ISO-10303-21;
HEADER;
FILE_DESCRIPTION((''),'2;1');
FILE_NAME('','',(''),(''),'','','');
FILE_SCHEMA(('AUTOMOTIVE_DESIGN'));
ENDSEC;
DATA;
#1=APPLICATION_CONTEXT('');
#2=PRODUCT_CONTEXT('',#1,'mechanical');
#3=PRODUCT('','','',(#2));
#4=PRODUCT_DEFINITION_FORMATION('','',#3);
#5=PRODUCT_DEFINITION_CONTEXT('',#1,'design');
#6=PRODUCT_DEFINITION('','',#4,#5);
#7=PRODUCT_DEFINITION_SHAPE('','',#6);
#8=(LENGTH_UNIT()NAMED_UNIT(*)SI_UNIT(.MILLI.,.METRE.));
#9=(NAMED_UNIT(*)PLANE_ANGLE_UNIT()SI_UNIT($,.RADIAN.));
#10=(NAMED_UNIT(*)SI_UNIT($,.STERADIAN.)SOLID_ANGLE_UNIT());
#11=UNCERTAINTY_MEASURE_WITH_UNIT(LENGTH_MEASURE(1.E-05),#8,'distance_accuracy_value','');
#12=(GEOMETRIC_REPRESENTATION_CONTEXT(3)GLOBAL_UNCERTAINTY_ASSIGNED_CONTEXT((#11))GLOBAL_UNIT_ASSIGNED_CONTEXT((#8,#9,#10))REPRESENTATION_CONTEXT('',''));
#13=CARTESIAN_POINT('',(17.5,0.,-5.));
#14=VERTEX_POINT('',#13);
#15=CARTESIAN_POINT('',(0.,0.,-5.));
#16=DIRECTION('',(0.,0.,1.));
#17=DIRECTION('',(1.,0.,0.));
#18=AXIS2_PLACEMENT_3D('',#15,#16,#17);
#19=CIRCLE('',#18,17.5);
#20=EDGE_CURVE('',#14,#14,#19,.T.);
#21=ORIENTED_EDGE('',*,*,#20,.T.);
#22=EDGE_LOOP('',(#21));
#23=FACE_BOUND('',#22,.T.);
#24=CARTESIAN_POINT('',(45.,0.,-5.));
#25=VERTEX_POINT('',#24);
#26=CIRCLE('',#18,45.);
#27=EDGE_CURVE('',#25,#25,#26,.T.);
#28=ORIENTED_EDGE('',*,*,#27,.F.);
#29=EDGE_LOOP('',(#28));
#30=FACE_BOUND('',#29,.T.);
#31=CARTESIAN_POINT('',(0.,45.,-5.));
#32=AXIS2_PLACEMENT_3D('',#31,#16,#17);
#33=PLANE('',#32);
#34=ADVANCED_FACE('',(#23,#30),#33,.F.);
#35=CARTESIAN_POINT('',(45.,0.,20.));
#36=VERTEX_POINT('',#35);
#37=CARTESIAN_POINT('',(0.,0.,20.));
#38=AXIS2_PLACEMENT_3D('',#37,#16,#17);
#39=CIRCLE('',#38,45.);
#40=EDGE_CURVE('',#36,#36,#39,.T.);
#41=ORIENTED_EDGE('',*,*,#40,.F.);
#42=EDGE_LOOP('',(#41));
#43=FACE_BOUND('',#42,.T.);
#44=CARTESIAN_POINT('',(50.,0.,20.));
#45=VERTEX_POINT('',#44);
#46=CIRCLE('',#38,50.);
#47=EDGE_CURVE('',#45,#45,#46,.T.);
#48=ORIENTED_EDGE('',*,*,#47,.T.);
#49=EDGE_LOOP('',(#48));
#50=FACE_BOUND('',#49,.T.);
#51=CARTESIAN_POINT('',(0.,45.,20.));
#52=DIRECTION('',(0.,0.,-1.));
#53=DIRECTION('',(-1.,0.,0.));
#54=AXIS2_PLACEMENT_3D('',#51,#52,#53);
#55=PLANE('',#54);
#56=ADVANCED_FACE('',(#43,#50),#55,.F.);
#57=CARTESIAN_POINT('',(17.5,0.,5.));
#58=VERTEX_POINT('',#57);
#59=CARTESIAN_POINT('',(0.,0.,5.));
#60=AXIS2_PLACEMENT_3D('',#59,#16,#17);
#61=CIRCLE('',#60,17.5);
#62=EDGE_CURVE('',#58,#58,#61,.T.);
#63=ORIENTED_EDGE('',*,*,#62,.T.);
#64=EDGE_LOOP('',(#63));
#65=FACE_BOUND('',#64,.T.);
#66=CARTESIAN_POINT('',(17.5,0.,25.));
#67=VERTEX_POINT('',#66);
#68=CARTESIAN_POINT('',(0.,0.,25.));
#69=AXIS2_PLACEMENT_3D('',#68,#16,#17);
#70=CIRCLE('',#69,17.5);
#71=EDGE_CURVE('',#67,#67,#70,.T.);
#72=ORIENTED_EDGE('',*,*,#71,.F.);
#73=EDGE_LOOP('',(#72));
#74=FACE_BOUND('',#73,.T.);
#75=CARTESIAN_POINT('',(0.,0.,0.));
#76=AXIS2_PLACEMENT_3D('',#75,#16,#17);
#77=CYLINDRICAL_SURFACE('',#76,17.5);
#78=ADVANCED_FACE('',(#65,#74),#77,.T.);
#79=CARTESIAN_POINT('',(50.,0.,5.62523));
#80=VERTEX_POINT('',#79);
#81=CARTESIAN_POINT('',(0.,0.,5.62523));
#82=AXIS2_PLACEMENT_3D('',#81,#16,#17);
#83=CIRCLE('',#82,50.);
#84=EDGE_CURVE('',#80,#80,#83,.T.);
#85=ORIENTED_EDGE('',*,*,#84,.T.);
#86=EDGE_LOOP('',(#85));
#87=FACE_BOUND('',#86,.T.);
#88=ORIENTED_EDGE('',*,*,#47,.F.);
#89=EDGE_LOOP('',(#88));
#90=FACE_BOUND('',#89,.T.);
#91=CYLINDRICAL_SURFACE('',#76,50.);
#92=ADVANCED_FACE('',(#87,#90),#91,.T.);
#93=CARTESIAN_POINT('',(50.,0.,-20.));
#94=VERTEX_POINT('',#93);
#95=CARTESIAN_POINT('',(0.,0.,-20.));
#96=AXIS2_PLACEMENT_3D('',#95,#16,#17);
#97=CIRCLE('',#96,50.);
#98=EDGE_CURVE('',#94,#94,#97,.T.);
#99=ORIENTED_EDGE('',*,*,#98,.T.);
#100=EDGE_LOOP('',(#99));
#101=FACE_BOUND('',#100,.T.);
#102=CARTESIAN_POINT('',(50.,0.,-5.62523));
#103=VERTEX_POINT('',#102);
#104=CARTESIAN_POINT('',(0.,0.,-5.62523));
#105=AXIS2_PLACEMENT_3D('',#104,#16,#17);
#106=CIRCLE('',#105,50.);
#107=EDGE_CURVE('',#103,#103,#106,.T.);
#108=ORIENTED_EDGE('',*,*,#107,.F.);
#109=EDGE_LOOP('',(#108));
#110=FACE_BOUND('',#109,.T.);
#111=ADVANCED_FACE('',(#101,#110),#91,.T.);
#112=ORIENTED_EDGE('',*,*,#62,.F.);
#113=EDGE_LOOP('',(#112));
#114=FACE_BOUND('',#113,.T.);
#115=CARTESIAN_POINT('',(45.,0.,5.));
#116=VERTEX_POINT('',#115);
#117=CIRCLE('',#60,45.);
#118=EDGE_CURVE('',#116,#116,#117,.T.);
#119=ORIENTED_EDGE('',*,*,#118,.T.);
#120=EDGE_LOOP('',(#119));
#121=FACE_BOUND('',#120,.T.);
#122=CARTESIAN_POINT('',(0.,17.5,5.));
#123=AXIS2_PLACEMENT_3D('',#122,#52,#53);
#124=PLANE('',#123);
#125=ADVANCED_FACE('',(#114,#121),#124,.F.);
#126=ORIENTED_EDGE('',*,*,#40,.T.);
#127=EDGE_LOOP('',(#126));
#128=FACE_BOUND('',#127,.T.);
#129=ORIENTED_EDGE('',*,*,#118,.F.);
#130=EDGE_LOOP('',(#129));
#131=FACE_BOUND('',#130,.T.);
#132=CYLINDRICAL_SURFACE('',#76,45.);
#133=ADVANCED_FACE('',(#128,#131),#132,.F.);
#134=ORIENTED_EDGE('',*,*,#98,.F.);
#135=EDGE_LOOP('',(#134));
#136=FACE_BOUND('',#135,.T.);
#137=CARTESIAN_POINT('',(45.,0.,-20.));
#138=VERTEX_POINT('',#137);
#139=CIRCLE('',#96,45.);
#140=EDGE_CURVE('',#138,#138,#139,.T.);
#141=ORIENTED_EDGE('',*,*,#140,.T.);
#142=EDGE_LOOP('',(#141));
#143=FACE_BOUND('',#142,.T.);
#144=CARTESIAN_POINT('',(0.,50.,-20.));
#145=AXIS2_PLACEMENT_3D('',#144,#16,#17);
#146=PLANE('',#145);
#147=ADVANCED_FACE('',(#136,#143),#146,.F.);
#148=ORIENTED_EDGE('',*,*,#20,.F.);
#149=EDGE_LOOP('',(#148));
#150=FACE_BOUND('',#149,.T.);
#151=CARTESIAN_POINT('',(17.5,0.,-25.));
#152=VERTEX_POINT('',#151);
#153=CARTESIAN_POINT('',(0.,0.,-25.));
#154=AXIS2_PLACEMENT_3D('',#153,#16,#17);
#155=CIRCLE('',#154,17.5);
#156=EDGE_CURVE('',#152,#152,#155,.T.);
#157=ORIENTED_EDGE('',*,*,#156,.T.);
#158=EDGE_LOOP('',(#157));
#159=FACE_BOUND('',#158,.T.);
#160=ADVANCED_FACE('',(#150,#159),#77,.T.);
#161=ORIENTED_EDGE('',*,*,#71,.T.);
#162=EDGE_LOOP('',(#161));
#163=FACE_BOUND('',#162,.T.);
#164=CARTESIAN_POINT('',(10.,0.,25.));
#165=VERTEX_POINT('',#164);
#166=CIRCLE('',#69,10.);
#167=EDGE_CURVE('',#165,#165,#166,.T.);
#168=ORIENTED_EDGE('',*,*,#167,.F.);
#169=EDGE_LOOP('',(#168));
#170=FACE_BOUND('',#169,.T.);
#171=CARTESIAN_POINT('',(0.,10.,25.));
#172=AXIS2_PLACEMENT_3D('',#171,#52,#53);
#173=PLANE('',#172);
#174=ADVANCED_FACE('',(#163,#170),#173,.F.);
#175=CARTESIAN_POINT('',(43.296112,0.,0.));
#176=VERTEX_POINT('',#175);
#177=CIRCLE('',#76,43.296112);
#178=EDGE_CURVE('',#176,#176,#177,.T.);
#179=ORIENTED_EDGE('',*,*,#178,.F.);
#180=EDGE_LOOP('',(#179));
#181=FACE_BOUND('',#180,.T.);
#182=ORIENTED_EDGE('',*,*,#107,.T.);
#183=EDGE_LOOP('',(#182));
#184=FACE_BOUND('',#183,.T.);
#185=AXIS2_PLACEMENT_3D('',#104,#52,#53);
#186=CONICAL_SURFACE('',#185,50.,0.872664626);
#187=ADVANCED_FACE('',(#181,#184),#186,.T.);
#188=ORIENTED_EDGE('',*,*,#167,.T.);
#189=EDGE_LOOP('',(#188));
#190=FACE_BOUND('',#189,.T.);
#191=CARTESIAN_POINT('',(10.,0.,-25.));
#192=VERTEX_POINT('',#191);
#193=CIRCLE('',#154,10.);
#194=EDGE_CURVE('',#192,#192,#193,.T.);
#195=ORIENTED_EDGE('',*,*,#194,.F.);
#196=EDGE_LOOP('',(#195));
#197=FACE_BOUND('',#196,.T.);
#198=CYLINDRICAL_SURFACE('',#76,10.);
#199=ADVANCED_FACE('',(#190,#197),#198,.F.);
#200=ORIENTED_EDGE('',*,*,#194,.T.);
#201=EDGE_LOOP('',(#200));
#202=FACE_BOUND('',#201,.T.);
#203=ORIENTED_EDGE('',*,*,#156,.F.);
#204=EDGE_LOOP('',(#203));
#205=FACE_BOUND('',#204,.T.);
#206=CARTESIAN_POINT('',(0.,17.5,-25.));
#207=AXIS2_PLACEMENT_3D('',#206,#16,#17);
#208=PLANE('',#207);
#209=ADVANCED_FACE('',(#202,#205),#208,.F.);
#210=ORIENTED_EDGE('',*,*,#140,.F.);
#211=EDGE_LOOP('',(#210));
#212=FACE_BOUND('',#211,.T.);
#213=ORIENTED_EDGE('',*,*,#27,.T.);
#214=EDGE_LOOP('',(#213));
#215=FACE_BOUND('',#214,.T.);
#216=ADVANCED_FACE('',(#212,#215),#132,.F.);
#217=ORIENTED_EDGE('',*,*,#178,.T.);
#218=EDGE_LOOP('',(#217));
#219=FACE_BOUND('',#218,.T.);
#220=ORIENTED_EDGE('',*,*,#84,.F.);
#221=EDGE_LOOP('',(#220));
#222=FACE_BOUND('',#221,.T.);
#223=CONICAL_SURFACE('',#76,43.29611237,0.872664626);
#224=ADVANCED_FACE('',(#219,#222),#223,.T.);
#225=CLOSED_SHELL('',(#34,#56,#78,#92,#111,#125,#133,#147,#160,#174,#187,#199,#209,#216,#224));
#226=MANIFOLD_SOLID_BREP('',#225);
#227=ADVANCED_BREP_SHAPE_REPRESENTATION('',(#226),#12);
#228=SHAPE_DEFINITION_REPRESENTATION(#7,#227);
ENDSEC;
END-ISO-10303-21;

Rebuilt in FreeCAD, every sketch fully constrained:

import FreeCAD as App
import Part
import Sketcher
Q = App.Units.Quantity


def add_polygon(sketch, points):
    """Adds a closed chain of lines whose ends are joined by coincident constraints."""
    first, n = sketch.GeometryCount, len(points)
    for a, b in zip(points, points[1:] + points[:1]):
        sketch.addGeometry(Part.LineSegment(App.Vector(*a, 0), App.Vector(*b, 0)), False)
    for i in range(n):
        sketch.addConstraint(Sketcher.Constraint("Coincident", first + i, 2, first + (i + 1) % n, 1))

doc = App.newDocument("Part")
body = doc.addObject("PartDesign::Body", "Body")

sketch1 = doc.addObject("Sketcher::SketchObject", "Sketch")
body.addObject(sketch1)
sketch1.AttachmentSupport = (doc.YZ_Plane, [""])
sketch1.MapMode = "FlatFace"
add_polygon(sketch1, [(10, 25), (10, -25), (18, -25), (18, -5), (45, -5), (45, -20), (50, -20), (50, -6), (43, 0), (50, 6), (50, 20), (45, 20), (45, 5), (18, 5), (18, 25)])
sketch1.addConstraint([
    Sketcher.Constraint("Vertical", 0),
    Sketcher.Constraint("Horizontal", 1),
    Sketcher.Constraint("Vertical", 2),
    Sketcher.Constraint("Horizontal", 3),
    Sketcher.Constraint("Vertical", 4),
    Sketcher.Constraint("Horizontal", 5),
    Sketcher.Constraint("Vertical", 6),
    Sketcher.Constraint("Vertical", 9),
    Sketcher.Constraint("Horizontal", 10),
    Sketcher.Constraint("Vertical", 11),
    Sketcher.Constraint("Horizontal", 12),
    Sketcher.Constraint("Vertical", 13),
    Sketcher.Constraint("Horizontal", 14),
    Sketcher.Constraint("Symmetric", 6, 2, 8, 2, -1),
    Sketcher.Constraint("Symmetric", 4, 2, 10, 2, -1),
    Sketcher.Constraint("Symmetric", 2, 2, 12, 2, -1),
    Sketcher.Constraint("PointOnObject", 7, 2, -1),
    Sketcher.Constraint("Equal", 2, 13),
    Sketcher.Constraint("DistanceX", 5, 1, 5, 2, 5.0),
    Sketcher.Constraint("DistanceY", 0, 2, 0, 1, 50.0),
    Sketcher.Constraint("DistanceY", 2, 1, 2, 2, 20.0),
    Sketcher.Constraint("DistanceY", 4, 2, 4, 1, 15.0),
    Sketcher.Constraint("Angle", 7, Q("140 deg")),
    Sketcher.Constraint("DistanceX", 1, 1, 1, 2, 7.5),
    Sketcher.Constraint("DistanceX", 3, 1, 3, 2, 27.5),
    Sketcher.Constraint("DistanceX", -1, 1, 0, 2, 10.0),
    Sketcher.Constraint("DistanceY", 6, 1, 6, 2, 14.37477),
])
revolution = doc.addObject("PartDesign::Revolution", "Revolution")
body.addObject(revolution)
revolution.Profile = sketch1
revolution.ReferenceAxis = (sketch1, ["V_Axis"])
revolution.Angle = 360

doc.recompute()
